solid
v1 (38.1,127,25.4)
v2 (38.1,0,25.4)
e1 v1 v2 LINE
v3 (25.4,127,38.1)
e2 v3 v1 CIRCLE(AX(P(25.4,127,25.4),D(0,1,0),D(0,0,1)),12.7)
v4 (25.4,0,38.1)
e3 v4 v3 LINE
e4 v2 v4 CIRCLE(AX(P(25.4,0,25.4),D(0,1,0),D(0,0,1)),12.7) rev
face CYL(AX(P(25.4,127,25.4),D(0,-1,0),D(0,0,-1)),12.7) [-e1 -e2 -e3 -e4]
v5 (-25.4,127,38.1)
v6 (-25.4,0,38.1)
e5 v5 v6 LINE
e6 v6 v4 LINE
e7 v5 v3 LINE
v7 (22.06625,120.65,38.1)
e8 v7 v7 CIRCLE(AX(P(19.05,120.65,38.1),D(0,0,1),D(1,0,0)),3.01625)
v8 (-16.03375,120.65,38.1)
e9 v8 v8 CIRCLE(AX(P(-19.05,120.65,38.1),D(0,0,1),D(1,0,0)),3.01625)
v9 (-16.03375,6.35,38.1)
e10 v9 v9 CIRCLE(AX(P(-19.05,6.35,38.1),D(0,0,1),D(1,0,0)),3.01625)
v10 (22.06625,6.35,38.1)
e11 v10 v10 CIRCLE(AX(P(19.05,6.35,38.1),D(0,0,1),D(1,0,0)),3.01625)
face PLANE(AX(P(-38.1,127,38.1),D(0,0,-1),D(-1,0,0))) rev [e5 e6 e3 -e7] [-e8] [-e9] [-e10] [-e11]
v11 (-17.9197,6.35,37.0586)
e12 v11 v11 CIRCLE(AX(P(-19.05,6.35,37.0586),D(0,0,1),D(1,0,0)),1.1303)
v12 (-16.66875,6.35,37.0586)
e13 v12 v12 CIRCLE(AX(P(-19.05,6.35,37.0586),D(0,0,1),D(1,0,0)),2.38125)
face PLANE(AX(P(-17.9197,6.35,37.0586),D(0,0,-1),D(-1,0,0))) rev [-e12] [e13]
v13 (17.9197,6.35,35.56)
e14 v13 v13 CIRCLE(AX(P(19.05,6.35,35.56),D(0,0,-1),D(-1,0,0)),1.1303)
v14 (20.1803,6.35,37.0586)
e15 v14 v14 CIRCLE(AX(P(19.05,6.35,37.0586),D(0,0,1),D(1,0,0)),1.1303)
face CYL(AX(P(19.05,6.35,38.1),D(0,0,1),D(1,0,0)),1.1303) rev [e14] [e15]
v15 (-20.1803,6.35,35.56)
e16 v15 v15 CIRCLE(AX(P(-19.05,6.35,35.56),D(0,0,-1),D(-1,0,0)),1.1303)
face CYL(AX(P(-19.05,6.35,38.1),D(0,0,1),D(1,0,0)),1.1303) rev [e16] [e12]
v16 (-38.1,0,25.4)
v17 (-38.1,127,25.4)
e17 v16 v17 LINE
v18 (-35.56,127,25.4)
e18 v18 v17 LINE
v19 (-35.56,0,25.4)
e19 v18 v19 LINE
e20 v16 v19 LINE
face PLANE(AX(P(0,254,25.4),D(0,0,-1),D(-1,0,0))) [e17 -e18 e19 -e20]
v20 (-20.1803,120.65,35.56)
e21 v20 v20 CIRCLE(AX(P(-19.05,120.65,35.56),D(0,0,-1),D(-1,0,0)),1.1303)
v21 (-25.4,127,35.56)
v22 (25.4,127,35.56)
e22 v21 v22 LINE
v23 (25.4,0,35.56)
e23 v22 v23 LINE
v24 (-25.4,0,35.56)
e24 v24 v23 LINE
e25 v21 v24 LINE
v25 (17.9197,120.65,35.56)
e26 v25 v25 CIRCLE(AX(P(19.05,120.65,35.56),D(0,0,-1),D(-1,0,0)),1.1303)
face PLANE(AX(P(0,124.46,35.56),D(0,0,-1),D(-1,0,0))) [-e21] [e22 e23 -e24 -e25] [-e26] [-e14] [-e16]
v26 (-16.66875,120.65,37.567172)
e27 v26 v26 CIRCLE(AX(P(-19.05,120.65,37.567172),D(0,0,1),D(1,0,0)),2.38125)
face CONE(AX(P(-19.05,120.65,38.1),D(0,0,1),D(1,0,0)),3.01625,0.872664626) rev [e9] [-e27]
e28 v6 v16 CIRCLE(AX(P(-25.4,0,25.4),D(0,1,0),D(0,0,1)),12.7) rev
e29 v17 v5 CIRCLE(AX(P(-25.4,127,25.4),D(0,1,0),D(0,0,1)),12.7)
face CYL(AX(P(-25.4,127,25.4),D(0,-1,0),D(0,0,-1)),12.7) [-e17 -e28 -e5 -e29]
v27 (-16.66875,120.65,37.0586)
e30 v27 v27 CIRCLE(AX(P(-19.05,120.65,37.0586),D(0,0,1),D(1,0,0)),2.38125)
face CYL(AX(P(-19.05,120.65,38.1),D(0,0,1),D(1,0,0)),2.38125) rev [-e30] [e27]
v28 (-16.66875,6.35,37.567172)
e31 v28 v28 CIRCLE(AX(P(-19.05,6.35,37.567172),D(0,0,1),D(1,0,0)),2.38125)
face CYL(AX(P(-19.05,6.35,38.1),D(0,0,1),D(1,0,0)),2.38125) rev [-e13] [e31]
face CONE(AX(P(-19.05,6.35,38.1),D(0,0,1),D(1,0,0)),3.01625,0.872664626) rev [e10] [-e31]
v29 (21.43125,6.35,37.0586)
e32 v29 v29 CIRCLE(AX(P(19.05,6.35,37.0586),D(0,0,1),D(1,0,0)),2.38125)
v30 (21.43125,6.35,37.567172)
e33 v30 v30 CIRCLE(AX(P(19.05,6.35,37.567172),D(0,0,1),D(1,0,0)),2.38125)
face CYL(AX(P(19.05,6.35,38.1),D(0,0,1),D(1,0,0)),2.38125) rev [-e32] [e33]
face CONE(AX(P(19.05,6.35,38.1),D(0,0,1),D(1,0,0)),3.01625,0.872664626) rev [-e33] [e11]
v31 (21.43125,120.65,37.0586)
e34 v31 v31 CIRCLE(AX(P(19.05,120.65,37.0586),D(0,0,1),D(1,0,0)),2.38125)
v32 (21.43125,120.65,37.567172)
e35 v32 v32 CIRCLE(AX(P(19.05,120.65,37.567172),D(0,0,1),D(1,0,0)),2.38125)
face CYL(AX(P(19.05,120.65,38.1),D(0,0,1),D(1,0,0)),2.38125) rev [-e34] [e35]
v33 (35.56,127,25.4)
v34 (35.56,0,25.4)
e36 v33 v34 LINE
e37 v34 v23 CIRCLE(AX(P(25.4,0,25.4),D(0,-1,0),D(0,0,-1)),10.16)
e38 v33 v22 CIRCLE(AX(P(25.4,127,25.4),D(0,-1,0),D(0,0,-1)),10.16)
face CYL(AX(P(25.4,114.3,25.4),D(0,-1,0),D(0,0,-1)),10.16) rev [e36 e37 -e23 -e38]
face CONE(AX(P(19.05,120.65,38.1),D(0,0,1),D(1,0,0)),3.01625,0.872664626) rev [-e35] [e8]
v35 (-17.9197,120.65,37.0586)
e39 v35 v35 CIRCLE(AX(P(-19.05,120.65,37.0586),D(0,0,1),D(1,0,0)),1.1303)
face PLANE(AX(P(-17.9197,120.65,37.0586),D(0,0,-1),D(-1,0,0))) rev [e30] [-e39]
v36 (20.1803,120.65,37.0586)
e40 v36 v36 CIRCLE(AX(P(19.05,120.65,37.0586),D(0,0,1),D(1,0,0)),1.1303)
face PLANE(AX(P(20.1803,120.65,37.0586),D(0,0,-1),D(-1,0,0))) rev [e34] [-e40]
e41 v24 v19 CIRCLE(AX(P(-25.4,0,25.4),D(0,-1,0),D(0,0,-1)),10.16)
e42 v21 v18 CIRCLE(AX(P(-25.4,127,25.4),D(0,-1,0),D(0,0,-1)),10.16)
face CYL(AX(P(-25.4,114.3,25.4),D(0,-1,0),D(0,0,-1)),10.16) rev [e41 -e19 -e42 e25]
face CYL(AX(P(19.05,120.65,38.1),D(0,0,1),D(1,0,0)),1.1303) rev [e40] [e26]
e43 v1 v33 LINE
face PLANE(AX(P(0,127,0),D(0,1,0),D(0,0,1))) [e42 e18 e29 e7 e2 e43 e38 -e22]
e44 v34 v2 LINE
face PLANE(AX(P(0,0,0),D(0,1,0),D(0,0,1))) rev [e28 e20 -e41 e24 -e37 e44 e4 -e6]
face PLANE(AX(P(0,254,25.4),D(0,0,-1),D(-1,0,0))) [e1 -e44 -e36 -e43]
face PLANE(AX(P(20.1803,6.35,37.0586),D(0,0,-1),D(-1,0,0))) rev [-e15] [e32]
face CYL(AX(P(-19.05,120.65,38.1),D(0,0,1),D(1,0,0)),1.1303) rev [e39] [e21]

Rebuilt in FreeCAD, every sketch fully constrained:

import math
import FreeCAD as App
import Part
import Sketcher
Q = App.Units.Quantity


def edges_at(feature, points):
    """Names of the edges that pass closest to the given points."""
    edges = feature.Shape.Edges
    near = lambda p: min(range(len(edges)), key=lambda i: edges[i].distToShape(Part.Vertex(*p))[0])
    return sorted({f"Edge{near(p) + 1}" for p in points})


def add_polygon(sketch, points):
    """Adds a closed chain of lines whose ends are joined by coincident constraints."""
    first, n = sketch.GeometryCount, len(points)
    for a, b in zip(points, points[1:] + points[:1]):
        sketch.addGeometry(Part.LineSegment(App.Vector(*a, 0), App.Vector(*b, 0)), False)
    for i in range(n):
        sketch.addConstraint(Sketcher.Constraint("Coincident", first + i, 2, first + (i + 1) % n, 1))

doc = App.newDocument("Part")
body = doc.addObject("PartDesign::Body", "Body")

sketch1 = body.newObject("Sketcher::SketchObject", "Sketch")
sketch1.AttachmentSupport = (doc.getObject("XZ_Plane"), [""])
sketch1.MapMode = "FlatFace"
add_polygon(sketch1, [(-38.1, -38.1), (-38.1, 38.1), (38.1, 38.1), (38.1, -38.1)])
sketch1.addConstraint([
    Sketcher.Constraint("Vertical", 0),
    Sketcher.Constraint("Horizontal", 1),
    Sketcher.Constraint("Vertical", 2),
    Sketcher.Constraint("Horizontal", 3),
    Sketcher.Constraint("Symmetric", 0, 2, 2, 2, -1, 1),
    Sketcher.Constraint("Equal", 3, 0),
    Sketcher.Constraint("DistanceX", 1, 1, 1, 2, Q("3 in")),
])
pad1 = body.newObject("PartDesign::Pad", "Pad")
pad1.Profile = sketch1
pad1.Length = Q("5 in")
pad1.Reversed = True
doc.recompute()

fillet = body.newObject("PartDesign::Fillet", "Fillet")
fillet.Base = (pad1, edges_at(pad1, [
    (38.1, 63.5, 38.1),
    (-38.1, 63.5, 38.1),
    (-38.1, 63.5, -38.1),
    (38.1, 63.5, -38.1),
]))
fillet.Radius = Q("0.5 in")

sketch2 = body.newObject("Sketcher::SketchObject", "Sketch001")
sketch2.AttachmentSupport = (doc.getObject("XZ_Plane"), [""])
sketch2.MapMode = "FlatFace"
sketch2.AttachmentOffset = App.Placement(App.Vector(0, 0, -5 * 25.4), App.Rotation())
add_polygon(sketch2, [(-38.1, -6.35), (-38.1, 6.35), (38.1, 6.35), (38.1, -6.35)])
sketch2.addConstraint([
    Sketcher.Constraint("Vertical", 0),
    Sketcher.Constraint("Horizontal", 1),
    Sketcher.Constraint("Vertical", 2),
    Sketcher.Constraint("Horizontal", 3),
    Sketcher.Constraint("Symmetric", 0, 2, 2, 2, -1, 1),
    Sketcher.Constraint("DistanceX", 1, 1, 1, 2, Q("3 in")),
    Sketcher.Constraint("DistanceY", 0, 1, 0, 2, Q("0.5 in")),
])
pad2 = body.newObject("PartDesign::Pad", "Pad001")
pad2.Profile = sketch2
pad2.Length = Q("2.25 in")
pad2.Reversed = True

sketch3 = body.newObject("Sketcher::SketchObject", "Sketch002")
sketch3.AttachmentSupport = (doc.getObject("XY_Plane"), [""])
sketch3.MapMode = "FlatFace"
sketch3.AttachmentOffset = App.Placement(App.Vector(0, 0, 0.25 * 25.4), App.Rotation())
sketch3.addGeometry([
    Part.LineSegment(App.Vector(-38.1, 184.15, 0), App.Vector(-38.1, 146.05, 0)),
    Part.ArcOfCircle(Part.Circle(App.Vector(0, 146.05, 0), App.Vector(0, 0, 1), 38.1), math.radians(90), math.radians(180)),
    Part.LineSegment(App.Vector(0, 184.15, 0), App.Vector(-38.1, 184.15, 0)),
    Part.ArcOfCircle(Part.Circle(App.Vector(0, 146.05, 0), App.Vector(0, 0, 1), 27.94), math.radians(90), math.radians(166.666112)),
    Part.LineSegment(App.Vector(-27.186811, 152.493671, 0), App.Vector(27.186811, 152.493671, 0)),
    Part.ArcOfCircle(Part.Circle(App.Vector(0, 146.05, 0), App.Vector(0, 0, 1), 27.94), math.radians(13.333888), math.radians(90)),
    Part.LineSegment(App.Vector(-27.94, 146.05, 0), App.Vector(-27.94, 132.743181, 0)),
    Part.ArcOfCircle(Part.Circle(App.Vector(0, 116.035667, 0), App.Vector(0, 0, 1), 32.554333), math.radians(112.783221), math.radians(149.121492)),
    Part.LineSegment(App.Vector(-12.606523, 146.05, 0), App.Vector(-27.94, 146.05, 0)),
    Part.ArcOfCircle(Part.Circle(App.Vector(0, 116.035667, 0), App.Vector(0, 0, 1), 32.554333), math.radians(30.878508), math.radians(67.216779)),
    Part.LineSegment(App.Vector(27.94, 132.743181, 0), App.Vector(27.94, 146.05, 0)),
    Part.LineSegment(App.Vector(27.94, 146.05, 0), App.Vector(12.606523, 146.05, 0)),
    Part.ArcOfCircle(Part.Circle(App.Vector(0, 116.035667, 0), App.Vector(0, 0, 1), 30.014333), math.radians(90), math.radians(158.573754)),
    Part.LineSegment(App.Vector(-27.94, 127, 0), App.Vector(27.94, 127, 0)),
    Part.ArcOfCircle(Part.Circle(App.Vector(0, 116.035667, 0), App.Vector(0, 0, 1), 30.014333), math.radians(21.426246), math.radians(90)),
    Part.ArcOfCircle(Part.Circle(App.Vector(0, 146.05, 0), App.Vector(0, 0, 1), 38.1), math.radians(0), math.radians(90)),
    Part.LineSegment(App.Vector(38.1, 146.05, 0), App.Vector(38.1, 184.15, 0)),
    Part.LineSegment(App.Vector(38.1, 184.15, 0), App.Vector(0, 184.15, 0)),
], False)
sketch3.addConstraint([
    Sketcher.Constraint("Tangent", 0, 2, 1, 2),
    Sketcher.Constraint("Tangent", 1, 1, 2, 1),
    Sketcher.Constraint("Coincident", 2, 2, 0, 1),
    Sketcher.Constraint("Coincident", 3, 2, 4, 1),
    Sketcher.Constraint("Coincident", 4, 2, 5, 1),
    Sketcher.Constraint("Tangent", 5, 2, 3, 1),
    Sketcher.Constraint("Coincident", 6, 2, 7, 2),
    Sketcher.Constraint("Coincident", 7, 1, 8, 1),
    Sketcher.Constraint("Coincident", 8, 2, 6, 1),
    Sketcher.Constraint("Coincident", 9, 1, 10, 1),
    Sketcher.Constraint("Coincident", 10, 2, 11, 1),
    Sketcher.Constraint("Coincident", 11, 2, 9, 2),
    Sketcher.Constraint("Coincident", 12, 2, 13, 1),
    Sketcher.Constraint("Coincident", 13, 2, 14, 1),
    Sketcher.Constraint("Tangent", 14, 2, 12, 1),
    Sketcher.Constraint("Tangent", 15, 1, 16, 1),
    Sketcher.Constraint("Coincident", 16, 2, 17, 1),
    Sketcher.Constraint("Tangent", 17, 2, 15, 2),
    Sketcher.Constraint("Vertical", 0),
    Sketcher.Constraint("Horizontal", 2),
    Sketcher.Constraint("Horizontal", 4),
    Sketcher.Constraint("Vertical", 6),
    Sketcher.Constraint("Horizontal", 8),
    Sketcher.Constraint("Vertical", 10),
    Sketcher.Constraint("Horizontal", 11),
    Sketcher.Constraint("Horizontal", 13),
    Sketcher.Constraint("Vertical", 16),
    Sketcher.Constraint("Horizontal", 17),
    Sketcher.Constraint("Coincident", 3, 3, 1, 3),
    Sketcher.Constraint("Coincident", 9, 3, 7, 3),
    Sketcher.Constraint("Coincident", 12, 3, 7, 3),
    Sketcher.Constraint("Coincident", 15, 3, 1, 3),
    Sketcher.Constraint("Coincident", 14, 2, 1, 3),
    Sketcher.Constraint("Equal", 3, 5),
    Sketcher.Constraint("Equal", 7, 9),
    Sketcher.Constraint("Equal", 12, 14),
    Sketcher.Constraint("Equal", 1, 15),
    Sketcher.Constraint("Symmetric", 6, 2, 9, 1, -2),
    Sketcher.Constraint("PointOnObject", 1, 3, -2),
    Sketcher.Constraint("PointOnObject", 5, 2, -2),
    Sketcher.Constraint("Horizontal", 0, 2, 7, 1),
    Sketcher.Constraint("Horizontal", 8, 2, 10, 2),
    Sketcher.Constraint("Vertical", 8, 2, 12, 2),
    Sketcher.Constraint("Radius", 1, Q("1.5 in")),
    Sketcher.Constraint("Radius", 3, Q("1.1 in")),
    Sketcher.Constraint("DistanceX", 13, 1, 13, 2, Q("2.2 in")),
    Sketcher.Constraint("DistanceY", -1, 1, 12, 2, Q("5 in")),
    Sketcher.Constraint("DistanceY", -1, 1, 1, 3, Q("5.75 in")),
    Sketcher.Constraint("Radius", 7, 32.554333),
    Sketcher.Constraint("DistanceX", 4, 1, 4, 2, 54.373623),
])
pocket1 = body.newObject("PartDesign::Pocket", "Pocket")
pocket1.Profile = sketch3
pocket1.Length = Q("0.5 in")

sketch4 = body.newObject("Sketcher::SketchObject", "Sketch003")
sketch4.AttachmentSupport = (doc.getObject("XZ_Plane"), [""])
sketch4.MapMode = "FlatFace"
sketch4.AttachmentOffset = App.Placement(App.Vector(0, 0, -10 * 25.4), App.Rotation())
sketch4.addGeometry([
    Part.LineSegment(App.Vector(-38.1, 25.4, 0), App.Vector(-38.1, -25.4, 0)),
    Part.ArcOfCircle(Part.Circle(App.Vector(-25.4, -25.4, 0), App.Vector(0, 0, 1), 12.7), math.radians(180), math.radians(270)),
    Part.LineSegment(App.Vector(-25.4, -38.1, 0), App.Vector(25.4, -38.1, 0)),
    Part.ArcOfCircle(Part.Circle(App.Vector(25.4, -25.4, 0), App.Vector(0, 0, 1), 12.7), math.radians(-90), math.radians(0)),
    Part.LineSegment(App.Vector(38.1, -25.4, 0), App.Vector(38.1, 25.4, 0)),
    Part.LineSegment(App.Vector(38.1, 25.4, 0), App.Vector(-38.1, 25.4, 0)),
], False)
sketch4.addConstraint([
    Sketcher.Constraint("Tangent", 0, 2, 1, 1),
    Sketcher.Constraint("Tangent", 1, 2, 2, 1),
    Sketcher.Constraint("Tangent", 2, 2, 3, 1),
    Sketcher.Constraint("Tangent", 3, 2, 4, 1),
    Sketcher.Constraint("Coincident", 4, 2, 5, 1),
    Sketcher.Constraint("Coincident", 5, 2, 0, 1),
    Sketcher.Constraint("Vertical", 0),
    Sketcher.Constraint("Horizontal", 2),
    Sketcher.Constraint("Vertical", 4),
    Sketcher.Constraint("Horizontal", 5),
    Sketcher.Constraint("Equal", 1, 3),
    Sketcher.Constraint("Symmetric", 0, 2, 4, 2, -1, 1),
    Sketcher.Constraint("Equal", 2, 0),
    Sketcher.Constraint("Radius", 1, Q("0.5 in")),
    Sketcher.Constraint("DistanceX", 2, 1, 2, 2, Q("2 in")),
])
pocket2 = body.newObject("PartDesign::Pocket", "Pocket001")
pocket2.Profile = sketch4
pocket2.Length = Q("10 in")
pocket2.Reversed = True

sketch5 = body.newObject("Sketcher::SketchObject", "Sketch004")
sketch5.AttachmentSupport = (doc.getObject("XZ_Plane"), [""])
sketch5.MapMode = "FlatFace"
add_polygon(sketch5, [(-25.4, 35.56), (-25.4, 25.4), (25.4, 25.4), (25.4, 35.56)])
sketch5.addConstraint([
    Sketcher.Constraint("Vertical", 0),
    Sketcher.Constraint("Horizontal", 1),
    Sketcher.Constraint("Vertical", 2),
    Sketcher.Constraint("Horizontal", 3),
    Sketcher.Constraint("DistanceX", 1, 1, 1, 2, Q("2 in")),
    Sketcher.Constraint("DistanceY", 0, 2, 0, 1, Q("0.4 in")),
    Sketcher.Constraint("DistanceX", 0, 2, -1, 1, Q("1 in")),
    Sketcher.Constraint("DistanceY", -1, 1, 0, 2, Q("1 in")),
])
pocket3 = body.newObject("PartDesign::Pocket", "Pocket002")
pocket3.Profile = sketch5
pocket3.Length = Q("4.9 in")

sketch6 = body.newObject("Sketcher::SketchObject", "Sketch005")
sketch6.AttachmentSupport = (doc.getObject("XZ_Plane"), [""])
sketch6.MapMode = "FlatFace"
sketch6.addGeometry([
    Part.ArcOfCircle(Part.Circle(App.Vector(-25.4, 25.4, 0), App.Vector(0, 0, 1), 10.16), math.radians(90), math.radians(180)),
    Part.LineSegment(App.Vector(-35.56, 25.4, 0), App.Vector(-25.4, 25.4, 0)),
    Part.LineSegment(App.Vector(-25.4, 25.4, 0), App.Vector(-25.4, 35.56, 0)),
    Part.LineSegment(App.Vector(25.4, 35.56, 0), App.Vector(25.4, 25.4, 0)),
    Part.LineSegment(App.Vector(25.4, 25.4, 0), App.Vector(35.56, 25.4, 0)),
    Part.ArcOfCircle(Part.Circle(App.Vector(25.4, 25.4, 0), App.Vector(0, 0, 1), 10.16), math.radians(0), math.radians(90)),
], False)
sketch6.addConstraint([
    Sketcher.Constraint("Coincident", 0, 2, 1, 1),
    Sketcher.Constraint("Coincident", 1, 2, 2, 1),
    Sketcher.Constraint("Coincident", 2, 2, 0, 1),
    Sketcher.Constraint("Coincident", 3, 2, 4, 1),
    Sketcher.Constraint("Coincident", 4, 2, 5, 1),
    Sketcher.Constraint("Coincident", 5, 2, 3, 1),
    Sketcher.Constraint("Horizontal", 1),
    Sketcher.Constraint("Vertical", 2),
    Sketcher.Constraint("Vertical", 3),
    Sketcher.Constraint("Horizontal", 4),
    Sketcher.Constraint("Coincident", 1, 2, 0, 3),
    Sketcher.Constraint("Coincident", 3, 2, 5, 3),
    Sketcher.Constraint("Equal", 0, 5),
    Sketcher.Constraint("Symmetric", 0, 3, 5, 3, -2),
    Sketcher.Constraint("Radius", 0, Q("0.4 in")),
    Sketcher.Constraint("DistanceX", 0, 3, -1, 1, Q("1 in")),
    Sketcher.Constraint("DistanceY", -1, 1, 0, 3, Q("1 in")),
])
pocket4 = body.newObject("PartDesign::Pocket", "Pocket003")
pocket4.Profile = sketch6
pocket4.Length = Q("4.5 in")

sketch7 = body.newObject("Sketcher::SketchObject", "Sketch006")
sketch7.AttachmentSupport = (doc.getObject("XZ_Plane"), [""])
sketch7.MapMode = "FlatFace"
sketch7.addGeometry([
    Part.ArcOfCircle(Part.Circle(App.Vector(-25.4, 25.4, 0), App.Vector(0, 0, 1), 10.16), math.radians(90), math.radians(180)),
    Part.LineSegment(App.Vector(-35.56, 25.4, 0), App.Vector(-25.4, 25.4, 0)),
    Part.LineSegment(App.Vector(-25.4, 25.4, 0), App.Vector(-25.4, 35.56, 0)),
    Part.LineSegment(App.Vector(25.4, 35.56, 0), App.Vector(25.4, 25.4, 0)),
    Part.LineSegment(App.Vector(25.4, 25.4, 0), App.Vector(35.56, 25.4, 0)),
    Part.ArcOfCircle(Part.Circle(App.Vector(25.4, 25.4, 0), App.Vector(0, 0, 1), 10.16), math.radians(0), math.radians(90)),
], False)
sketch7.addConstraint([
    Sketcher.Constraint("Coincident", 0, 2, 1, 1),
    Sketcher.Constraint("Coincident", 1, 2, 2, 1),
    Sketcher.Constraint("Coincident", 2, 2, 0, 1),
    Sketcher.Constraint("Coincident", 3, 2, 4, 1),
    Sketcher.Constraint("Coincident", 4, 2, 5, 1),
    Sketcher.Constraint("Coincident", 5, 2, 3, 1),
    Sketcher.Constraint("Horizontal", 1),
    Sketcher.Constraint("Vertical", 2),
    Sketcher.Constraint("Vertical", 3),
    Sketcher.Constraint("Horizontal", 4),
    Sketcher.Constraint("Coincident", 1, 2, 0, 3),
    Sketcher.Constraint("Coincident", 3, 2, 5, 3),
    Sketcher.Constraint("Equal", 0, 5),
    Sketcher.Constraint("Symmetric", 0, 3, 5, 3, -2),
    Sketcher.Constraint("Radius", 0, Q("0.4 in")),
    Sketcher.Constraint("DistanceX", 0, 3, -1, 1, Q("1 in")),
    Sketcher.Constraint("DistanceY", -1, 1, 0, 3, Q("1 in")),
])
pad3 = body.newObject("PartDesign::Pad", "Pad002")
pad3.Profile = sketch7
pad3.Length = Q("0.5 in")
pad3.Reversed = True

sketch8 = body.newObject("Sketcher::SketchObject", "Sketch007")
sketch8.AttachmentSupport = (doc.getObject("XZ_Plane"), [""])
sketch8.MapMode = "FlatFace"
sketch8.addGeometry([
    Part.ArcOfCircle(Part.Circle(App.Vector(25.4, 25.4, 0), App.Vector(0, 0, 1), 10.16), math.radians(0), math.radians(90)),
    Part.LineSegment(App.Vector(25.4, 35.56, 0), App.Vector(-25.4, 35.56, 0)),
    Part.ArcOfCircle(Part.Circle(App.Vector(-25.4, 25.4, 0), App.Vector(0, 0, 1), 10.16), math.radians(90), math.radians(180)),
    Part.LineSegment(App.Vector(-35.56, 25.4, 0), App.Vector(35.56, 25.4, 0)),
], False)
sketch8.addConstraint([
    Sketcher.Constraint("Tangent", 0, 2, 1, 1),
    Sketcher.Constraint("Tangent", 1, 2, 2, 1),
    Sketcher.Constraint("Coincident", 2, 2, 3, 1),
    Sketcher.Constraint("Coincident", 3, 2, 0, 1),
    Sketcher.Constraint("Horizontal", 1),
    Sketcher.Constraint("Horizontal", 3),
    Sketcher.Constraint("Equal", 0, 2),
    Sketcher.Constraint("Horizontal", 0, 3, 2, 2),
    Sketcher.Constraint("Radius", 0, Q("0.4 in")),
    Sketcher.Constraint("DistanceX", 1, 2, 1, 1, Q("2 in")),
    Sketcher.Constraint("DistanceX", -1, 1, 0, 3, Q("1 in")),
    Sketcher.Constraint("DistanceY", -1, 1, 0, 3, Q("1 in")),
])
pocket5 = body.newObject("PartDesign::Pocket", "Pocket004")
pocket5.Profile = sketch8
pocket5.Length = Q("5 in")

sketch9 = body.newObject("Sketcher::SketchObject", "Sketch008")
sketch9.AttachmentSupport = (doc.getObject("YZ_Plane"), [""])
sketch9.MapMode = "FlatFace"
sketch9.AttachmentOffset = App.Placement(App.Vector(0, 0, -0.75 * 25.4), App.Rotation())
add_polygon(sketch9, [(120.65, 27.260847), (120.65, 38.1), (117.63375, 38.1), (118.26875, 37.567172), (118.26875, 37.0586), (119.5197, 37.0586), (119.5197, 27.94)])
sketch9.addGeometry(Part.LineSegment(App.Vector(120.65, 38.1, 0), App.Vector(120.65, 27.260847, 0)), True)
sketch9.addConstraint([
    Sketcher.Constraint("Vertical", 0),
    Sketcher.Constraint("Horizontal", 1),
    Sketcher.Constraint("Vertical", 3),
    Sketcher.Constraint("Horizontal", 4),
    Sketcher.Constraint("Vertical", 5),
    Sketcher.Constraint("Vertical", 7),
    Sketcher.Constraint("Coincident", 7, 1, 0, 2),
    Sketcher.Constraint("Equal", 0, 7),
    Sketcher.Constraint("Angle", 2, Q("-40 deg")),
    Sketcher.Constraint("Angle", 6, Q("-31 deg")),
    Sketcher.Constraint("DistanceY", -1, 1, 0, 2, Q("1.5 in")),
    Sketcher.Constraint("DistanceY", -1, 1, 5, 2, Q("1.1 in")),
    Sketcher.Constraint("DistanceY", 5, 2, 5, 1, Q("0.359 in")),
    Sketcher.Constraint("DistanceX", -1, 1, 0, 2, Q("4.75 in")),
    Sketcher.Constraint("DistanceX", -1, 1, 2, 2, Q("4.65625 in")),
    Sketcher.Constraint("DistanceX", 1, 2, 2, 2, Q("0.025 in")),
    Sketcher.Constraint("DistanceX", -1, 1, 4, 2, Q("4.7055 in")),
])
groove = body.newObject("PartDesign::Groove", "Groove")
groove.Profile = sketch9
groove.ReferenceAxis = (sketch9, ["Axis0"])
groove.Angle = 360
doc.recompute()

linearpattern = body.newObject("PartDesign::LinearPattern", "LinearPattern")
linearpattern.Originals = [groove]
linearpattern.Direction = (doc.getObject("X_Axis"), [""])
linearpattern.Mode = "offset"
linearpattern.Offset = Q("1.5 in")
linearpattern.Occurrences = 2
body.Tip = linearpattern
doc.recompute()

linearpattern2 = body.newObject("PartDesign::LinearPattern", "LinearPattern001")
linearpattern2.Originals = [groove]
linearpattern2.Direction = (doc.getObject("Y_Axis"), [""])
linearpattern2.Mode = "offset"
linearpattern2.Offset = Q("4.5 in")
linearpattern2.Occurrences = 2
linearpattern2.Reversed = True
body.Tip = linearpattern2
doc.recompute()

datumline = body.newObject("PartDesign::Line", "DatumLine")
datumline.Placement = App.Placement(App.Vector(0, 0, 0), App.Rotation(App.Vector(0, 0, 1), App.Vector(0.316227766, -0.948683298, 0)))
linearpattern3 = body.newObject("PartDesign::LinearPattern", "LinearPattern002")
linearpattern3.Originals = [groove]
linearpattern3.Direction = (datumline, [""])
linearpattern3.Mode = "offset"
linearpattern3.Offset = 120.482779
linearpattern3.Occurrences = 2
body.Tip = linearpattern3

doc.recompute()
